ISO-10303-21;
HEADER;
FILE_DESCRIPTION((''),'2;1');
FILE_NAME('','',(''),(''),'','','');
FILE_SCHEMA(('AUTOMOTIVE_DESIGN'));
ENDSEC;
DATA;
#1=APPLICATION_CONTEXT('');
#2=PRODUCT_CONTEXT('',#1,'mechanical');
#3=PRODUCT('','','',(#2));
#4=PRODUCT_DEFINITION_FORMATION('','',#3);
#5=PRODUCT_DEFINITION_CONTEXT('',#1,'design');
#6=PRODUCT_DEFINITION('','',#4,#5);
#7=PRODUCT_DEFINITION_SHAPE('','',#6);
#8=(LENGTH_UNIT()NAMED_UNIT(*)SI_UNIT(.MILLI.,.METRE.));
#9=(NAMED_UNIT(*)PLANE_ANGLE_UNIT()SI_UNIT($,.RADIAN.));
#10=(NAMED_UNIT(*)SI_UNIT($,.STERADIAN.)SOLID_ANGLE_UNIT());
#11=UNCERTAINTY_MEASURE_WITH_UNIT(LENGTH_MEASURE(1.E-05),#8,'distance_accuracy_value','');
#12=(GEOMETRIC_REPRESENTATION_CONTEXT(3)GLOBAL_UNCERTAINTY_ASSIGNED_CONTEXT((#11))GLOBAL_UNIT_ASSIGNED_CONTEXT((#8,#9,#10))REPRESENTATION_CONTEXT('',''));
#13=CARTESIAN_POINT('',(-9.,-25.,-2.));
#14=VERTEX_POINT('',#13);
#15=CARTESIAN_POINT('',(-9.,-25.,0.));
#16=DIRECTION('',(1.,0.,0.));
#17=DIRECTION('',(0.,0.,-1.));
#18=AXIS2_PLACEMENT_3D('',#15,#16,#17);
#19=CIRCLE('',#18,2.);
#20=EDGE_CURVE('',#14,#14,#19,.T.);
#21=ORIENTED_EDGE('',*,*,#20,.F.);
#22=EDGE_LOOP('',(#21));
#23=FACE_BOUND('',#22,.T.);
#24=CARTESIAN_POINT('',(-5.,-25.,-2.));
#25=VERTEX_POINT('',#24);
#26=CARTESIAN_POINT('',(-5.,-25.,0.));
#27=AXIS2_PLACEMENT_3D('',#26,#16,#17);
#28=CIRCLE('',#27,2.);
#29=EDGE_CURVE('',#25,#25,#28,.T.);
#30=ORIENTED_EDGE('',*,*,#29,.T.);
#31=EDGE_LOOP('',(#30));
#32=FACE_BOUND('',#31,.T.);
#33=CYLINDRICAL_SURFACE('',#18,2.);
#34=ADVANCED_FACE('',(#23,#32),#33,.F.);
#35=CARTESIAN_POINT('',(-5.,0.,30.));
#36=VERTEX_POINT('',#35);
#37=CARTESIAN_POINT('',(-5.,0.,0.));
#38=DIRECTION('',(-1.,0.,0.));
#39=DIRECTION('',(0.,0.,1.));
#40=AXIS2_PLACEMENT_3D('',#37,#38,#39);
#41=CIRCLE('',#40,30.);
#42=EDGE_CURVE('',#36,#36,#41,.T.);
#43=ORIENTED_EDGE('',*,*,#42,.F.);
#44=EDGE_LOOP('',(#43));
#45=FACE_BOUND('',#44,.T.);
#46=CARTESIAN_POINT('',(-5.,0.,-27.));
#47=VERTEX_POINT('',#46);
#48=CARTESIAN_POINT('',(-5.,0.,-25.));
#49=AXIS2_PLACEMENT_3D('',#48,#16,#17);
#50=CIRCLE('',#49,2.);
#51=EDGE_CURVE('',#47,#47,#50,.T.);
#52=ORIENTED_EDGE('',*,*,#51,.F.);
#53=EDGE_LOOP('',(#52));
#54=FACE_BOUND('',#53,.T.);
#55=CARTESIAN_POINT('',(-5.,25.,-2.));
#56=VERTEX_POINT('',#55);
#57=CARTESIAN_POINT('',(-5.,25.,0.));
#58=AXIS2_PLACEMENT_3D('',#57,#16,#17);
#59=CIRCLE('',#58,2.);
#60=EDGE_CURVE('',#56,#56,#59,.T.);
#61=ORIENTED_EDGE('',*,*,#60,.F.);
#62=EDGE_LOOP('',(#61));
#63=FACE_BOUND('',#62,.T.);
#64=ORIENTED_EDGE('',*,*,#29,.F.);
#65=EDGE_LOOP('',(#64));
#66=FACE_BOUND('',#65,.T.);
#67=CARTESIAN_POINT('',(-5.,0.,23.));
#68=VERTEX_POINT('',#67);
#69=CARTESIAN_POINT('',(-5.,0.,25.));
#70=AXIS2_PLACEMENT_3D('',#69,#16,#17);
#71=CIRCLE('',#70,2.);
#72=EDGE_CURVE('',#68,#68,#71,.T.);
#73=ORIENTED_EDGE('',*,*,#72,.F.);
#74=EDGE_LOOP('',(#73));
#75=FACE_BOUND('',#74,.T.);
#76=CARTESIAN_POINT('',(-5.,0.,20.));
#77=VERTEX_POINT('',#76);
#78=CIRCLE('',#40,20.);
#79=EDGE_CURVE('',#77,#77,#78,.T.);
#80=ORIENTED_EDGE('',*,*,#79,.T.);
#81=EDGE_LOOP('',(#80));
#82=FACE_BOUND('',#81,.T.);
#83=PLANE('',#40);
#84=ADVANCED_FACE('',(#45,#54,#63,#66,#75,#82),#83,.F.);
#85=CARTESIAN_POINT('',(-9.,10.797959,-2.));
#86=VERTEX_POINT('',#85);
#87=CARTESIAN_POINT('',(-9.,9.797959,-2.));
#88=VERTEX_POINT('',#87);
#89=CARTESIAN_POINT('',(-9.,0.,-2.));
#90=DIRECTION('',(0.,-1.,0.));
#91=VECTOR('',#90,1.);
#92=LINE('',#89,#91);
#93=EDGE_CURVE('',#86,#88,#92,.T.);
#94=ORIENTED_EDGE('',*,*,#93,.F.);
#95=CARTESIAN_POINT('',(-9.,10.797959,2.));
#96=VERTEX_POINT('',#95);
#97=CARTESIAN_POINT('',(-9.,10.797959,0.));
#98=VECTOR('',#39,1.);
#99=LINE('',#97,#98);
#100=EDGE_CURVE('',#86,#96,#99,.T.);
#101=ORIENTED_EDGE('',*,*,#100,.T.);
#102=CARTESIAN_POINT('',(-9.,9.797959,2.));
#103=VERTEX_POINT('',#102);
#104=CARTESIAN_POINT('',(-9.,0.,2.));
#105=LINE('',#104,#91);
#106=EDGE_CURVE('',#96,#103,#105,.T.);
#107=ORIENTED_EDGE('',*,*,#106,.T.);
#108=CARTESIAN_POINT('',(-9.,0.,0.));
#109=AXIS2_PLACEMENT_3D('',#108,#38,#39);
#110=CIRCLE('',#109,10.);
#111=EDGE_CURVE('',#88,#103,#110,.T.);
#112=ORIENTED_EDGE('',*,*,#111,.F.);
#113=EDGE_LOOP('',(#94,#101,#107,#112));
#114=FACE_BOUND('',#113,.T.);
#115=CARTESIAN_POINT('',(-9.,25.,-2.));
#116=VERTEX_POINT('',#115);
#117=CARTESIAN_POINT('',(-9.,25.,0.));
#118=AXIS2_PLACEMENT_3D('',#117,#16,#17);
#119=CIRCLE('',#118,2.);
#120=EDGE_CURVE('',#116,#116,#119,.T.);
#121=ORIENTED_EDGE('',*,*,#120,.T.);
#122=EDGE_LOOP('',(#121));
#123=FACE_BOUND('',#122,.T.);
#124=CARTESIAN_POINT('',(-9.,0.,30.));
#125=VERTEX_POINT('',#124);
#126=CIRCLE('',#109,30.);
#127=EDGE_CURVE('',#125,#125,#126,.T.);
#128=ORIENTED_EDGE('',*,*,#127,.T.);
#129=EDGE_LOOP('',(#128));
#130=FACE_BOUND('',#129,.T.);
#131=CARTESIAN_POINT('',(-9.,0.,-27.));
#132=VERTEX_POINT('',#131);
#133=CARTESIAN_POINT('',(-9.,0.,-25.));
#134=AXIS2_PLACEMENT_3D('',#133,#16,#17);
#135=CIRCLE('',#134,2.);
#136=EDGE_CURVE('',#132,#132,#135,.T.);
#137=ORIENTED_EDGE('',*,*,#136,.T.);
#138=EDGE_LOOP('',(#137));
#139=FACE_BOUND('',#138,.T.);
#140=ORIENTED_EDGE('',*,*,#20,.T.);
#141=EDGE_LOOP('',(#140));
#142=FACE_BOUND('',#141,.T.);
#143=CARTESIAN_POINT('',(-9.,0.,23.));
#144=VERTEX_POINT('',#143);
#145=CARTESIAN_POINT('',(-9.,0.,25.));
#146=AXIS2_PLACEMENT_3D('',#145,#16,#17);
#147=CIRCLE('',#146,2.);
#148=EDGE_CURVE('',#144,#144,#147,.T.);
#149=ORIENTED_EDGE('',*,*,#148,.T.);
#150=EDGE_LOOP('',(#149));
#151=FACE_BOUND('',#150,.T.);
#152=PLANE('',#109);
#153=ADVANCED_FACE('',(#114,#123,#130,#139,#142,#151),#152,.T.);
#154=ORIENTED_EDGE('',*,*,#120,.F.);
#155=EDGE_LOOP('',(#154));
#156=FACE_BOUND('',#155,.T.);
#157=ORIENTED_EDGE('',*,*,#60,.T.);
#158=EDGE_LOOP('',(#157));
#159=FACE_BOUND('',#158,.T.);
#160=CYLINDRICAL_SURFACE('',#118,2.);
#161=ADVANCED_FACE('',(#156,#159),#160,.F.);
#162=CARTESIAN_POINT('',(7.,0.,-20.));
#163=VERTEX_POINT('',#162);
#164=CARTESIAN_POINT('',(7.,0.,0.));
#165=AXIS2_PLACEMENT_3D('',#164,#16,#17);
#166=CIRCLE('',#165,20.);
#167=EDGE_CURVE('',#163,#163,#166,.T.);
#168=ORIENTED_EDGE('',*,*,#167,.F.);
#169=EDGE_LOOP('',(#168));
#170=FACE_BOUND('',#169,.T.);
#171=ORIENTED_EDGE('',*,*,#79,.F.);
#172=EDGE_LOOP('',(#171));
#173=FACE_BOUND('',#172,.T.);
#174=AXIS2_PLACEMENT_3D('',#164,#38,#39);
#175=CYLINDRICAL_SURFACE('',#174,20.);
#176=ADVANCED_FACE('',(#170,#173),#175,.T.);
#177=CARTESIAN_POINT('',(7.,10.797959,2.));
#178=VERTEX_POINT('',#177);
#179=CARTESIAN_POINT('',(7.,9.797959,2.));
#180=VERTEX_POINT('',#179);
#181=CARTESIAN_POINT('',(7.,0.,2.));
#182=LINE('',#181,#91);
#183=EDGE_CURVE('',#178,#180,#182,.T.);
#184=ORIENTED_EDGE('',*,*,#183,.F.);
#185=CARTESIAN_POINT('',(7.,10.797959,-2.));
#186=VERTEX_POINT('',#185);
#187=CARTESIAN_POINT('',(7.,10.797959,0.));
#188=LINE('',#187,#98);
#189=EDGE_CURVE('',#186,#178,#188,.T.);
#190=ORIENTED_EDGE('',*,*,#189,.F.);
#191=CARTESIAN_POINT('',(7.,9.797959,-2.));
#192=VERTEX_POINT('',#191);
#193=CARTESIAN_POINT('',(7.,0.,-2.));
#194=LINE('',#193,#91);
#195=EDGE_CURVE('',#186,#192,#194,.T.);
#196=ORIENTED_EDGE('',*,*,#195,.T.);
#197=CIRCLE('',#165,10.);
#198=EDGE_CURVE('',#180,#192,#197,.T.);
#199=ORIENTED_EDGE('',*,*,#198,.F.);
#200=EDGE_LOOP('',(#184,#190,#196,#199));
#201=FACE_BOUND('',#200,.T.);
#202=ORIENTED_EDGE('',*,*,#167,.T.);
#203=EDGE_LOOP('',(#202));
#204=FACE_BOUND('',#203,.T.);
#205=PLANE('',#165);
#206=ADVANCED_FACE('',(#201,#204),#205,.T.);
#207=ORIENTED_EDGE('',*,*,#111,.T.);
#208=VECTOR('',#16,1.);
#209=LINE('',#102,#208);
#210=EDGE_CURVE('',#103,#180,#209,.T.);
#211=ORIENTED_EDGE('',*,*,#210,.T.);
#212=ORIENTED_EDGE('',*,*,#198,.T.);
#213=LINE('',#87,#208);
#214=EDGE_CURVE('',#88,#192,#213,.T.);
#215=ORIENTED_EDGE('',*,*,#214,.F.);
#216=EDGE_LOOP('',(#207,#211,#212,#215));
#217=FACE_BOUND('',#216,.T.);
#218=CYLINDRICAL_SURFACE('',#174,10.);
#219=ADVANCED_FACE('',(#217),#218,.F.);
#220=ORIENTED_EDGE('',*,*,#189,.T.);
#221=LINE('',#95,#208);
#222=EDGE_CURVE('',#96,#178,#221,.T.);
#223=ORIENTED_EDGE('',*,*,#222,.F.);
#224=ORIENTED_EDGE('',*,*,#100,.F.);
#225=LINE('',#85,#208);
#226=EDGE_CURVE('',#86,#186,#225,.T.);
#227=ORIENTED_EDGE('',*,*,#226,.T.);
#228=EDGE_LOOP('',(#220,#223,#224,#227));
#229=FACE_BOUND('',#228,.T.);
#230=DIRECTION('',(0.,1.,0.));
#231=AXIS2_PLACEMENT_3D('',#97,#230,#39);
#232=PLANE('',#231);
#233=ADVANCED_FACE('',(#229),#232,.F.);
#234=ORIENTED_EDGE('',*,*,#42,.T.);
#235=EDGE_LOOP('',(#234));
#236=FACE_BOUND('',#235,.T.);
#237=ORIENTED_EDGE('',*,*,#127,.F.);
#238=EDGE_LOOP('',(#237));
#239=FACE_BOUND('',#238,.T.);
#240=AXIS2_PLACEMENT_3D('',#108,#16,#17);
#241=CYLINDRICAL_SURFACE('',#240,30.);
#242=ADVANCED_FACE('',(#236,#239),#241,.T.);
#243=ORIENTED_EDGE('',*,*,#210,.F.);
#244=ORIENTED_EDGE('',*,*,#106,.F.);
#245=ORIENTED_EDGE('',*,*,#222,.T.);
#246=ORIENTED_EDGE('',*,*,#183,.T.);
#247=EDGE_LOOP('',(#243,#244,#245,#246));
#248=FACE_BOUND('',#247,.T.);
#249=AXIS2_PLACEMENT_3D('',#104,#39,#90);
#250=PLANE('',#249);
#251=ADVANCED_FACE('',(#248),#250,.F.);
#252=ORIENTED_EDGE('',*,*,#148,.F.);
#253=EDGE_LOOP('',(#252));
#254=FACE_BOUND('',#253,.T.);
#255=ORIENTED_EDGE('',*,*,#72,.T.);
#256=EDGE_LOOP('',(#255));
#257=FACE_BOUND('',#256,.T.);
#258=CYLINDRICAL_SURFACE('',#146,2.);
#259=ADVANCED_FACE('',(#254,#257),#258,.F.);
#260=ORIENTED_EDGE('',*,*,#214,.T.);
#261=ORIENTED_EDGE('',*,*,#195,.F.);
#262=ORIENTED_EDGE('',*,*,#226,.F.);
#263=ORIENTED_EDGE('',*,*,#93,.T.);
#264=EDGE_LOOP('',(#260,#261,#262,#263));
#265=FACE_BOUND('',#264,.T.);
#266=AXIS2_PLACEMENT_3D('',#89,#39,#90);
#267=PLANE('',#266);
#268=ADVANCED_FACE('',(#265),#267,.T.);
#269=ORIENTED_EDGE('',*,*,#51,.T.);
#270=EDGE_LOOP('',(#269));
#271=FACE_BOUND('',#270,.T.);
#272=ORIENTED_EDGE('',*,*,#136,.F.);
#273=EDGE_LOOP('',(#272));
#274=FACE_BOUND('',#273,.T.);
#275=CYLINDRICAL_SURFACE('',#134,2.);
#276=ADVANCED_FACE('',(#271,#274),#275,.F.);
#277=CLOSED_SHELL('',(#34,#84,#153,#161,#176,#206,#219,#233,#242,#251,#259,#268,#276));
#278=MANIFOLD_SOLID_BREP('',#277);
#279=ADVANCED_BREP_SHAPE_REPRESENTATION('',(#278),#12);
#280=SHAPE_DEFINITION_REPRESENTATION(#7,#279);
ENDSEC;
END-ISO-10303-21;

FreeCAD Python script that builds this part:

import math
import FreeCAD as App
import Part
import Sketcher

V = App.Vector
Q = App.Units.Quantity

doc = App.newDocument("Part")
body = doc.addObject("PartDesign::Body", "Body")

# Sketch on YZ plane
sketch1 = body.newObject("Sketcher::SketchObject", "Sketch")
sketch1.AttachmentSupport = (doc.getObject("YZ_Plane"), [""])
sketch1.MapMode = "FlatFace"
sketch1.addGeometry([
    Part.Circle(V(0, 0, 0), V(0, 0, 1), 20),
    Part.Circle(V(0, 0, 0), V(0, 0, 1), 10),
], False)
sketch1.addConstraint([
    Sketcher.Constraint("Coincident", 0, 3, -1, 1),
    Sketcher.Constraint("Coincident", 1, 3, -1, 1),
    Sketcher.Constraint("Diameter", 0, Q("40 mm")),
    Sketcher.Constraint("Diameter", 1, Q("20 mm")),
])
pad1 = body.newObject("PartDesign::Pad", "Pad")
pad1.Profile = sketch1
pad1.Length = 14
pad1.Midplane = True

# Sketch on YZ plane
sketch2 = body.newObject("Sketcher::SketchObject", "Sketch001")
sketch2.AttachmentSupport = (doc.getObject("YZ_Plane"), [""])
sketch2.MapMode = "FlatFace"
sketch2.AttachmentOffset = App.Placement(V(0, 0, -7), App.Rotation())
sketch2.addGeometry([
    Part.Circle(V(0, 0, 0), V(0, 0, 1), 30),
    Part.Circle(V(0, 0, 0), V(0, 0, 1), 10),
], False)
sketch2.addConstraint([
    Sketcher.Constraint("Coincident", 0, 3, -1, 1),
    Sketcher.Constraint("Coincident", 1, 3, -1, 1),
    Sketcher.Constraint("Diameter", 0, Q("60 mm")),
    Sketcher.Constraint("Diameter", 1, Q("20 mm")),
])
pad2 = body.newObject("PartDesign::Pad", "Pad001")
pad2.Profile = sketch2
pad2.Length = 4
pad2.Midplane = True

# Sketch on YZ plane
sketch3 = body.newObject("Sketcher::SketchObject", "Sketch002")
sketch3.AttachmentSupport = (doc.getObject("YZ_Plane"), [""])
sketch3.MapMode = "FlatFace"
sketch3.AttachmentOffset = App.Placement(V(0, 0, -5), App.Rotation())
sketch3.addGeometry([
    Part.Circle(V(25, 0, 0), V(0, 0, 1), 2),
    Part.Circle(V(0, -25, 0), V(0, 0, 1), 2),
    Part.Circle(V(-25, 0, 0), V(0, 0, 1), 2),
    Part.Circle(V(0, 25, 0), V(0, 0, 1), 2),
], False)
sketch3.addConstraint([
    Sketcher.Constraint("Equal", 0, 1),
    Sketcher.Constraint("Equal", 1, 2),
    Sketcher.Constraint("Equal", 2, 3),
    Sketcher.Constraint("Symmetric", 0, 3, 2, 3, -1, 1),
    Sketcher.Constraint("Symmetric", 1, 3, 3, 3, -1, 1),
    Sketcher.Constraint("PointOnObject", 0, 3, -1),
    Sketcher.Constraint("PointOnObject", 1, 3, -2),
    Sketcher.Constraint("Diameter", 0, Q("4 mm")),
    Sketcher.Constraint("DistanceX", -1, 1, 0, 3, Q("25 mm")),
    Sketcher.Constraint("DistanceY", 1, 3, -1, 1, Q("25 mm")),
])
pocket1 = body.newObject("PartDesign::Pocket", "Pocket")
pocket1.Profile = sketch3
pocket1.Type = "ThroughAll"

# Sketch on YZ plane
sketch4 = body.newObject("Sketcher::SketchObject", "Sketch003")
sketch4.AttachmentSupport = (doc.getObject("YZ_Plane"), [""])
sketch4.MapMode = "FlatFace"
sketch4.AttachmentOffset = App.Placement(V(0, 0, 7), App.Rotation())
sketch4.addGeometry([
    Part.ArcOfCircle(Part.Circle(V(0, 0, 0), V(0, 0, 1), 10), math.radians(0), math.radians(11.54)),  # 0
    Part.LineSegment(V(10, 0, 0), V(10.8, 0, 0)),  # 1
    Part.LineSegment(V(10.8, 0, 0), V(10.8, 2, 0)),  # 2
    Part.LineSegment(V(10.8, 2, 0), V(9.8, 2, 0)),  # 3
    Part.LineSegment(V(10.8, 0, 0), V(10, 0, 0)),  # 4
    Part.ArcOfCircle(Part.Circle(V(0, 0, 0), V(0, 0, 1), 10), math.radians(-11.54), math.radians(0)),  # 5
    Part.LineSegment(V(9.8, -2, 0), V(10.8, -2, 0)),  # 6
    Part.LineSegment(V(10.8, -2, 0), V(10.8, 0, 0)),  # 7
], False)
sketch4.addConstraint([
    Sketcher.Constraint("Coincident", 0, 1, 1, 1),
    Sketcher.Constraint("Coincident", 1, 2, 2, 1),
    Sketcher.Constraint("Coincident", 2, 2, 3, 1),
    Sketcher.Constraint("Coincident", 3, 2, 0, 2),
    Sketcher.Constraint("Coincident", 4, 2, 5, 2),
    Sketcher.Constraint("Coincident", 5, 1, 6, 1),
    Sketcher.Constraint("Coincident", 6, 2, 7, 1),
    Sketcher.Constraint("Coincident", 7, 2, 4, 1),
    Sketcher.Constraint("Horizontal", 1),
    Sketcher.Constraint("Vertical", 2),
    Sketcher.Constraint("Horizontal", 3),
    Sketcher.Constraint("Horizontal", 4),
    Sketcher.Constraint("Horizontal", 6),
    Sketcher.Constraint("Vertical", 7),
    Sketcher.Constraint("Coincident", 0, 3, -1, 1),
    Sketcher.Constraint("Coincident", 5, 3, -1, 1),
    Sketcher.Constraint("Coincident", 4, 2, 0, 1),
    Sketcher.Constraint("Symmetric", 2, 2, 6, 2, -1),
    Sketcher.Constraint("PointOnObject", 0, 1, -1),
    Sketcher.Constraint("Radius", 0, Q("10 mm")),
    Sketcher.Constraint("DistanceX", 3, 2, 3, 1, Q("1 mm")),
    Sketcher.Constraint("DistanceY", 2, 1, 2, 2, Q("2 mm")),
])
pocket2 = body.newObject("PartDesign::Pocket", "Pocket001")
pocket2.Profile = sketch4
pocket2.Type = "ThroughAll"

doc.recompute()
